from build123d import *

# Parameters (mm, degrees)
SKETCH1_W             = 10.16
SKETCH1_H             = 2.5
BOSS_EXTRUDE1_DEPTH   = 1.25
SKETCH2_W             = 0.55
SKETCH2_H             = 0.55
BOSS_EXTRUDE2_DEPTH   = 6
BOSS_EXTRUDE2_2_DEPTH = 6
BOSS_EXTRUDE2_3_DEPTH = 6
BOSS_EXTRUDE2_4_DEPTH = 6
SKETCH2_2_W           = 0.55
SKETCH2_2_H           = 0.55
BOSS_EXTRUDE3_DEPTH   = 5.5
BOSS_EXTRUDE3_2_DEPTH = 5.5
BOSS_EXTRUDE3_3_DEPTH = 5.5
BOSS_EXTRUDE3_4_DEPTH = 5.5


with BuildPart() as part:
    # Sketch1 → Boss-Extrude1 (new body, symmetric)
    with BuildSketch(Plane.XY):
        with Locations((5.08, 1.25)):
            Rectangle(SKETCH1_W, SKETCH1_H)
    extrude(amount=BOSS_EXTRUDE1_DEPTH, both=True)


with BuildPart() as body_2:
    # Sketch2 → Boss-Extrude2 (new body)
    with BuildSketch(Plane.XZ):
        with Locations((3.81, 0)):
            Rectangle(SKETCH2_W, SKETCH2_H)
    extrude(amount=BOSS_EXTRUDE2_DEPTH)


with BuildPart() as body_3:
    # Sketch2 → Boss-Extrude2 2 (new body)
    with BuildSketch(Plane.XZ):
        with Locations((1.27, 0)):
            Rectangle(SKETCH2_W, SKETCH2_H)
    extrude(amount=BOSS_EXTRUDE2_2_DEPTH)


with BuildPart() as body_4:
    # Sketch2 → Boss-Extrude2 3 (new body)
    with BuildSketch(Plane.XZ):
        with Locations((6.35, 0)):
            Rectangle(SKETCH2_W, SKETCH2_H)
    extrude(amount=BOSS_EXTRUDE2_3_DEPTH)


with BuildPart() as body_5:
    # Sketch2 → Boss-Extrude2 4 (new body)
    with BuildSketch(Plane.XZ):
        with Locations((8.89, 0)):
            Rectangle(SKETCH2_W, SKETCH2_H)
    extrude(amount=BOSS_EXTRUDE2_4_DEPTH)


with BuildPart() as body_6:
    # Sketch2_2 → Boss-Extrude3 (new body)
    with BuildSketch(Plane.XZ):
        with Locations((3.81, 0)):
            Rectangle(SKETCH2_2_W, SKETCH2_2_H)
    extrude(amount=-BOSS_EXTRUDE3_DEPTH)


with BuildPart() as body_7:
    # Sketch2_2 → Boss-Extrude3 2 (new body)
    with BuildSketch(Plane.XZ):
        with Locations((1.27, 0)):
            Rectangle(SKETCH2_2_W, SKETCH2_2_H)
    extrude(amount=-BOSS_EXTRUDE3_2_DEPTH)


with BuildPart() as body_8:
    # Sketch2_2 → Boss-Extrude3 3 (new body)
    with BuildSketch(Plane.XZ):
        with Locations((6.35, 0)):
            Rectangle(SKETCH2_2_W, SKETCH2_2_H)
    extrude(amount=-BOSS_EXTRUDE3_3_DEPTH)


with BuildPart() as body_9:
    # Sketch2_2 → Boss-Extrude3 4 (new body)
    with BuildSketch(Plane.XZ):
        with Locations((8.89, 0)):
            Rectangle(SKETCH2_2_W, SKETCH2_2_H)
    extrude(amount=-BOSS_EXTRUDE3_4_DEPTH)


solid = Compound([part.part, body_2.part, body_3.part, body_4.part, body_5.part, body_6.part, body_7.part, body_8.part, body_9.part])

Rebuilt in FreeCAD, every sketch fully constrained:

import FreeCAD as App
import Part
import Sketcher

V = App.Vector


def add_polygon(sketch, points):
    """Adds a closed chain of lines whose ends are joined by coincident constraints."""
    first, n = sketch.GeometryCount, len(points)
    for a, b in zip(points, points[1:] + points[:1]):
        sketch.addGeometry(Part.LineSegment(App.Vector(*a, 0), App.Vector(*b, 0)), False)
    for i in range(n):
        sketch.addConstraint(Sketcher.Constraint("Coincident", first + i, 2, first + (i + 1) % n, 1))

doc = App.newDocument("Part")
body = doc.addObject("PartDesign::Body", "Body")

# Sketch on XY plane
sketch1 = body.newObject("Sketcher::SketchObject", "Sketch")
sketch1.AttachmentSupport = (doc.getObject("XY_Plane"), [""])
sketch1.MapMode = "FlatFace"
add_polygon(sketch1, [(0, 2.5), (0, 0), (10.16, 0), (10.16, 2.5)])  # lines 0-3
sketch1.addConstraint([
    Sketcher.Constraint("Vertical", 0),
    Sketcher.Constraint("Horizontal", 1),
    Sketcher.Constraint("Vertical", 2),
    Sketcher.Constraint("Horizontal", 3),
    Sketcher.Constraint("Coincident", 0, 2, -1, 1),
    Sketcher.Constraint("DistanceY", 0, 2, 0, 1, 2.5),
    Sketcher.Constraint("DistanceX", 1, 1, 1, 2, 10.16),
])
pad1 = body.newObject("PartDesign::Pad", "Pad")
pad1.Profile = sketch1
pad1.Length = 2.5
pad1.Midplane = True
body2 = doc.addObject("PartDesign::Body", "Body001")

# Sketch on XZ plane
sketch2 = body2.newObject("Sketcher::SketchObject", "Sketch001")
sketch2.AttachmentSupport = (doc.getObject("XZ_Plane001"), [""])
sketch2.MapMode = "FlatFace"
add_polygon(sketch2, [(3.535, 0.275), (3.535, -0.275), (4.085, -0.275), (4.085, 0.275)])  # lines 0-3
sketch2.addConstraint([
    Sketcher.Constraint("Vertical", 0),
    Sketcher.Constraint("Horizontal", 1),
    Sketcher.Constraint("Vertical", 2),
    Sketcher.Constraint("Horizontal", 3),
    Sketcher.Constraint("Equal", 3, 0),
    Sketcher.Constraint("DistanceX", 1, 1, 1, 2, 0.55),
    Sketcher.Constraint("DistanceX", -1, 1, 0, 2, 3.535),
    Sketcher.Constraint("DistanceY", 0, 2, -1, 1, 0.275),
])
pad2 = body2.newObject("PartDesign::Pad", "Pad001")
pad2.Profile = sketch2
pad2.Length = 6
body3 = doc.addObject("PartDesign::Body", "Body002")

# Sketch on XZ plane
sketch3 = body3.newObject("Sketcher::SketchObject", "Sketch002")
sketch3.AttachmentSupport = (doc.getObject("XZ_Plane002"), [""])
sketch3.MapMode = "FlatFace"
add_polygon(sketch3, [(0.995, 0.275), (0.995, -0.275), (1.545, -0.275), (1.545, 0.275)])  # lines 0-3
sketch3.addConstraint([
    Sketcher.Constraint("Vertical", 0),
    Sketcher.Constraint("Horizontal", 1),
    Sketcher.Constraint("Vertical", 2),
    Sketcher.Constraint("Horizontal", 3),
    Sketcher.Constraint("Equal", 3, 0),
    Sketcher.Constraint("DistanceX", 1, 1, 1, 2, 0.55),
    Sketcher.Constraint("DistanceX", -1, 1, 0, 2, 0.995),
    Sketcher.Constraint("DistanceY", 0, 2, -1, 1, 0.275),
])
pad3 = body3.newObject("PartDesign::Pad", "Pad002")
pad3.Profile = sketch3
pad3.Length = 6
body4 = doc.addObject("PartDesign::Body", "Body003")

# Sketch on XZ plane
sketch4 = body4.newObject("Sketcher::SketchObject", "Sketch003")
sketch4.AttachmentSupport = (doc.getObject("XZ_Plane003"), [""])
sketch4.MapMode = "FlatFace"
add_polygon(sketch4, [(6.075, 0.275), (6.075, -0.275), (6.625, -0.275), (6.625, 0.275)])  # lines 0-3
sketch4.addConstraint([
    Sketcher.Constraint("Vertical", 0),
    Sketcher.Constraint("Horizontal", 1),
    Sketcher.Constraint("Vertical", 2),
    Sketcher.Constraint("Horizontal", 3),
    Sketcher.Constraint("Equal", 3, 0),
    Sketcher.Constraint("DistanceX", 1, 1, 1, 2, 0.55),
    Sketcher.Constraint("DistanceX", -1, 1, 0, 2, 6.075),
    Sketcher.Constraint("DistanceY", 0, 2, -1, 1, 0.275),
])
pad4 = body4.newObject("PartDesign::Pad", "Pad003")
pad4.Profile = sketch4
pad4.Length = 6
body5 = doc.addObject("PartDesign::Body", "Body004")

# Sketch on XZ plane
sketch5 = body5.newObject("Sketcher::SketchObject", "Sketch004")
sketch5.AttachmentSupport = (doc.getObject("XZ_Plane004"), [""])
sketch5.MapMode = "FlatFace"
add_polygon(sketch5, [(8.615, 0.275), (8.615, -0.275), (9.165, -0.275), (9.165, 0.275)])  # lines 0-3
sketch5.addConstraint([
    Sketcher.Constraint("Vertical", 0),
    Sketcher.Constraint("Horizontal", 1),
    Sketcher.Constraint("Vertical", 2),
    Sketcher.Constraint("Horizontal", 3),
    Sketcher.Constraint("Equal", 3, 0),
    Sketcher.Constraint("DistanceX", 1, 1, 1, 2, 0.55),
    Sketcher.Constraint("DistanceX", -1, 1, 0, 2, 8.615),
    Sketcher.Constraint("DistanceY", 0, 2, -1, 1, 0.275),
])
pad5 = body5.newObject("PartDesign::Pad", "Pad004")
pad5.Profile = sketch5
pad5.Length = 6
body6 = doc.addObject("PartDesign::Body", "Body005")

# Sketch on XZ plane
sketch6 = body6.newObject("Sketcher::SketchObject", "Sketch005")
sketch6.AttachmentSupport = (doc.getObject("XZ_Plane005"), [""])
sketch6.MapMode = "FlatFace"
add_polygon(sketch6, [(3.535, 0.275), (3.535, -0.275), (4.085, -0.275), (4.085, 0.275)])  # lines 0-3
sketch6.addConstraint([
    Sketcher.Constraint("Vertical", 0),
    Sketcher.Constraint("Horizontal", 1),
    Sketcher.Constraint("Vertical", 2),
    Sketcher.Constraint("Horizontal", 3),
    Sketcher.Constraint("Equal", 3, 0),
    Sketcher.Constraint("DistanceX", 1, 1, 1, 2, 0.55),
    Sketcher.Constraint("DistanceX", -1, 1, 0, 2, 3.535),
    Sketcher.Constraint("DistanceY", 0, 2, -1, 1, 0.275),
])
pad6 = body6.newObject("PartDesign::Pad", "Pad005")
pad6.Profile = sketch6
pad6.Length = 5.5
pad6.Reversed = True
body7 = doc.addObject("PartDesign::Body", "Body006")

# Sketch on XZ plane
sketch7 = body7.newObject("Sketcher::SketchObject", "Sketch006")
sketch7.AttachmentSupport = (doc.getObject("XZ_Plane006"), [""])
sketch7.MapMode = "FlatFace"
add_polygon(sketch7, [(0.995, 0.275), (0.995, -0.275), (1.545, -0.275), (1.545, 0.275)])  # lines 0-3
sketch7.addConstraint([
    Sketcher.Constraint("Vertical", 0),
    Sketcher.Constraint("Horizontal", 1),
    Sketcher.Constraint("Vertical", 2),
    Sketcher.Constraint("Horizontal", 3),
    Sketcher.Constraint("Equal", 3, 0),
    Sketcher.Constraint("DistanceX", 1, 1, 1, 2, 0.55),
    Sketcher.Constraint("DistanceX", -1, 1, 0, 2, 0.995),
    Sketcher.Constraint("DistanceY", 0, 2, -1, 1, 0.275),
])
pad7 = body7.newObject("PartDesign::Pad", "Pad006")
pad7.Profile = sketch7
pad7.Length = 5.5
pad7.Reversed = True
body8 = doc.addObject("PartDesign::Body", "Body007")

# Sketch on XZ plane
sketch8 = body8.newObject("Sketcher::SketchObject", "Sketch007")
sketch8.AttachmentSupport = (doc.getObject("XZ_Plane007"), [""])
sketch8.MapMode = "FlatFace"
add_polygon(sketch8, [(6.075, 0.275), (6.075, -0.275), (6.625, -0.275), (6.625, 0.275)])  # lines 0-3
sketch8.addConstraint([
    Sketcher.Constraint("Vertical", 0),
    Sketcher.Constraint("Horizontal", 1),
    Sketcher.Constraint("Vertical", 2),
    Sketcher.Constraint("Horizontal", 3),
    Sketcher.Constraint("Equal", 3, 0),
    Sketcher.Constraint("DistanceX", 1, 1, 1, 2, 0.55),
    Sketcher.Constraint("DistanceX", -1, 1, 0, 2, 6.075),
    Sketcher.Constraint("DistanceY", 0, 2, -1, 1, 0.275),
])
pad8 = body8.newObject("PartDesign::Pad", "Pad007")
pad8.Profile = sketch8
pad8.Length = 5.5
pad8.Reversed = True
body9 = doc.addObject("PartDesign::Body", "Body008")

# Sketch on XZ plane
sketch9 = body9.newObject("Sketcher::SketchObject", "Sketch008")
sketch9.AttachmentSupport = (doc.getObject("XZ_Plane008"), [""])
sketch9.MapMode = "FlatFace"
add_polygon(sketch9, [(8.615, 0.275), (8.615, -0.275), (9.165, -0.275), (9.165, 0.275)])  # lines 0-3
sketch9.addConstraint([
    Sketcher.Constraint("Vertical", 0),
    Sketcher.Constraint("Horizontal", 1),
    Sketcher.Constraint("Vertical", 2),
    Sketcher.Constraint("Horizontal", 3),
    Sketcher.Constraint("Equal", 3, 0),
    Sketcher.Constraint("DistanceX", 1, 1, 1, 2, 0.55),
    Sketcher.Constraint("DistanceX", -1, 1, 0, 2, 8.615),
    Sketcher.Constraint("DistanceY", 0, 2, -1, 1, 0.275),
])
pad9 = body9.newObject("PartDesign::Pad", "Pad008")
pad9.Profile = sketch9
pad9.Length = 5.5
pad9.Reversed = True

doc.recompute()
